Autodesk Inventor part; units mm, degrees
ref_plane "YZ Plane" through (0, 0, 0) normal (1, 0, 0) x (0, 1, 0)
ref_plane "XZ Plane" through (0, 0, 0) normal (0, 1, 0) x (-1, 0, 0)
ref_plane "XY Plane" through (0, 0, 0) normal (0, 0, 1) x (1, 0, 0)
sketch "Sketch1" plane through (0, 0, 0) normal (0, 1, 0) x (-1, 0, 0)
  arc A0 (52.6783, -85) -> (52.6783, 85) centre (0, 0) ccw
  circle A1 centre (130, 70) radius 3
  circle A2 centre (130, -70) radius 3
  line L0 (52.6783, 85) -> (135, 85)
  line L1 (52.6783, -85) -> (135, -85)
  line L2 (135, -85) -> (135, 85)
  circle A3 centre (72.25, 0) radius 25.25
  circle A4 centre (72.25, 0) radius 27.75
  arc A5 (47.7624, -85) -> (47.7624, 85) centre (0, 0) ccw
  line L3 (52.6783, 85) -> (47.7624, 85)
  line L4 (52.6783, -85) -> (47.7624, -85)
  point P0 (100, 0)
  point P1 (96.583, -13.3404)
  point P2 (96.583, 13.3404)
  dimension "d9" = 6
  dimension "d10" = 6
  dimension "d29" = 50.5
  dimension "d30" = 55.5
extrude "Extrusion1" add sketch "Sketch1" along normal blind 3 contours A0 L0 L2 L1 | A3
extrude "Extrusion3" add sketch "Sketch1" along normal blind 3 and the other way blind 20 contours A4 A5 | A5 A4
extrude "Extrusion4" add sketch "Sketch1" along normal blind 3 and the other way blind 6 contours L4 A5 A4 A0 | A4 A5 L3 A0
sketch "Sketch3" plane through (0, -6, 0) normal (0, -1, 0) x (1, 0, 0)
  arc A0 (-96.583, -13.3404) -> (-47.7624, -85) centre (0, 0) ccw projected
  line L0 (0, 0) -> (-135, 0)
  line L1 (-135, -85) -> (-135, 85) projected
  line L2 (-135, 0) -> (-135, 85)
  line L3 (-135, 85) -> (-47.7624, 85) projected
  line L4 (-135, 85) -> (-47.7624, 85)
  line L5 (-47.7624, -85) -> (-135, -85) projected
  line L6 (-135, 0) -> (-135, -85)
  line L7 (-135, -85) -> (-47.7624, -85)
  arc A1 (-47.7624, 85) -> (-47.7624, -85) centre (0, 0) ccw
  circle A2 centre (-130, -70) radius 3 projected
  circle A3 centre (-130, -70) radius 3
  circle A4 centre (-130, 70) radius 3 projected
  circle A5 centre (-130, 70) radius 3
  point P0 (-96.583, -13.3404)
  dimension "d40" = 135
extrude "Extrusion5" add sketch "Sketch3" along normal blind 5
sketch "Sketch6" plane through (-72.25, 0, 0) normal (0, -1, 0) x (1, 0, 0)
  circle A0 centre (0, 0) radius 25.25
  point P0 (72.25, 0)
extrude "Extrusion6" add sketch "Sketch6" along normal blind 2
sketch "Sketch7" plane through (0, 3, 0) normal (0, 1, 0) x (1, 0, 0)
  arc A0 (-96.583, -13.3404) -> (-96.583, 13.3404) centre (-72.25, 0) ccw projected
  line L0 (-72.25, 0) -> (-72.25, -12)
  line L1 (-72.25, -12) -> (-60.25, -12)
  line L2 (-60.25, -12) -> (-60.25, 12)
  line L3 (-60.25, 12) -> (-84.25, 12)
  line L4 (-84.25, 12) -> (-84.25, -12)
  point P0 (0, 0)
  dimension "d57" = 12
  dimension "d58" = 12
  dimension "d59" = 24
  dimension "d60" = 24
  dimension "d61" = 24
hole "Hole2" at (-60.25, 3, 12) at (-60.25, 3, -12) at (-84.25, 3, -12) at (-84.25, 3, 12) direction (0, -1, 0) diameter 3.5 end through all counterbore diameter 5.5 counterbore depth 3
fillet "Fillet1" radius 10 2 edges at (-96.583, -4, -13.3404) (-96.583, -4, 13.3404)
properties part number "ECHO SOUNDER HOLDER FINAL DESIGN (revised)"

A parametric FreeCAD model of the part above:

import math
import FreeCAD as App
import Part
import Sketcher

V = App.Vector


def edges_at(feature, points):
    """Names of the edges that pass closest to the given points."""
    edges = feature.Shape.Edges
    near = lambda p: min(range(len(edges)), key=lambda i: edges[i].distToShape(Part.Vertex(*p))[0])
    return sorted({f"Edge{near(p) + 1}" for p in points})

doc = App.newDocument("Part")
body = doc.addObject("PartDesign::Body", "Body")
body.AllowCompound = True

sketch1 = doc.addObject("Sketcher::SketchObject", "Sketch")
body.addObject(sketch1)
sketch1.AttachmentSupport = (doc.XZ_Plane, [""])
sketch1.MapMode = "FlatFace"
sketch1.addGeometry([
    Part.ArcOfCircle(Part.Circle(V(0, 0, 0), V(0, 0, 1), 100), math.radians(122), math.radians(238)),
    Part.LineSegment(V(-52.7, -85, 0), V(-135, -85, 0)),
    Part.LineSegment(V(-135, -85, 0), V(-135, 85, 0)),
    Part.LineSegment(V(-135, 85, 0), V(-52.7, 85, 0)),
    Part.Circle(V(-130, -70, 0), V(0, 0, 1), 3),
    Part.Circle(V(-130, 70, 0), V(0, 0, 1), 3),
    Part.Circle(V(-72.2, 0, 0), V(0, 0, 1), 25.2),
], False)
sketch1.addConstraint([
    Sketcher.Constraint("Coincident", 0, 2, 1, 1),
    Sketcher.Constraint("Coincident", 1, 2, 2, 1),
    Sketcher.Constraint("Coincident", 2, 2, 3, 1),
    Sketcher.Constraint("Coincident", 3, 2, 0, 1),
    Sketcher.Constraint("Horizontal", 1),
    Sketcher.Constraint("Vertical", 2),
    Sketcher.Constraint("Horizontal", 3),
    Sketcher.Constraint("Coincident", 0, 3, -1, 1),
    Sketcher.Constraint("Equal", 4, 5),
    Sketcher.Constraint("Symmetric", 4, 3, 5, 3, -1),
    Sketcher.Constraint("PointOnObject", 6, 3, -1),
    Sketcher.Constraint("Vertical", 0, 2, 3, 2),
    Sketcher.Constraint("Diameter", 4, 6.0),
    Sketcher.Constraint("Diameter", 6, 50.5),
    Sketcher.Constraint("Radius", 0, 100.0),
    Sketcher.Constraint("DistanceY", 2, 1, 2, 2, 170.0),
    Sketcher.Constraint("DistanceX", 4, 3, -1, 1, 130.0),
    Sketcher.Constraint("DistanceY", 4, 3, -1, 1, 70.0),
    Sketcher.Constraint("DistanceX", 1, 2, -1, 1, 135.0),
    Sketcher.Constraint("DistanceX", 6, 3, -1, 1, 72.25),
])
pad1 = doc.addObject("PartDesign::Pad", "Pad")
body.addObject(pad1)
pad1.Profile = sketch1
pad1.Length = 3
pad1.Reversed = True

sketch2 = doc.addObject("Sketcher::SketchObject", "Sketch001")
body.addObject(sketch2)
sketch2.AttachmentSupport = (doc.XZ_Plane, [""])
sketch2.MapMode = "FlatFace"
sketch2.addGeometry([
    Part.Circle(V(-72, 0, 0), V(0, 0, 1), 28),
    Part.Circle(V(-72, 0, 0), V(0, 0, 1), 25),
], False)
sketch2.addConstraint([
    Sketcher.Constraint("Coincident", 1, 3, 0, 3),
    Sketcher.Constraint("PointOnObject", 0, 3, -1),
    Sketcher.Constraint("Diameter", 0, 55.5),
    Sketcher.Constraint("Diameter", 1, 50.5),
    Sketcher.Constraint("DistanceX", 0, 3, -1, 1, 72.25),
])
pad2 = doc.addObject("PartDesign::Pad", "Pad001")
body.addObject(pad2)
pad2.Profile = sketch2
pad2.Type = "TwoLengths"
pad2.Length = 3
pad2.Length2 = 20
pad2.Reversed = True

sketch3 = doc.addObject("Sketcher::SketchObject", "Sketch002")
body.addObject(sketch3)
sketch3.AttachmentSupport = (doc.XZ_Plane, [""])
sketch3.MapMode = "FlatFace"
sketch3.addGeometry([
    Part.LineSegment(V(-47.8, -85, 0), V(-52.7, -85, 0)),
    Part.ArcOfCircle(Part.Circle(V(0, 0, 0), V(0, 0, 1), 100), math.radians(180), math.radians(238)),
    Part.ArcOfCircle(Part.Circle(V(-72.2, 0, 0), V(0, 0, 1), 27.8), math.radians(180), math.radians(209)),
    Part.ArcOfCircle(Part.Circle(V(0, 0, 0), V(0, 0, 1), 97.5), math.radians(-172), math.radians(-119)),
    Part.ArcOfCircle(Part.Circle(V(-72.2, 0, 0), V(0, 0, 1), 27.8), math.radians(151), math.radians(180)),
    Part.ArcOfCircle(Part.Circle(V(0, 0, 0), V(0, 0, 1), 100), math.radians(122), math.radians(180)),
    Part.LineSegment(V(-52.7, 85, 0), V(-47.8, 85, 0)),
    Part.ArcOfCircle(Part.Circle(V(0, 0, 0), V(0, 0, 1), 97.5), math.radians(119), math.radians(172)),
], False)
sketch3.addConstraint([
    Sketcher.Constraint("Coincident", 0, 2, 1, 2),
    Sketcher.Constraint("Tangent", 1, 1, 2, 1),
    Sketcher.Constraint("Coincident", 2, 2, 3, 1),
    Sketcher.Constraint("Coincident", 3, 2, 0, 1),
    Sketcher.Constraint("Tangent", 4, 2, 5, 2),
    Sketcher.Constraint("Coincident", 5, 1, 6, 1),
    Sketcher.Constraint("Coincident", 6, 2, 7, 1),
    Sketcher.Constraint("Coincident", 7, 2, 4, 1),
    Sketcher.Constraint("Horizontal", 0),
    Sketcher.Constraint("Horizontal", 6),
    Sketcher.Constraint("Coincident", 1, 3, -1, 1),
    Sketcher.Constraint("Coincident", 3, 3, -1, 1),
    Sketcher.Constraint("Coincident", 5, 3, -1, 1),
    Sketcher.Constraint("Coincident", 7, 3, -1, 1),
    Sketcher.Constraint("Coincident", 4, 3, 2, 3),
    Sketcher.Constraint("Equal", 2, 4),
    Sketcher.Constraint("Equal", 3, 7),
    Sketcher.Constraint("PointOnObject", 2, 3, -1),
    Sketcher.Constraint("Vertical", 0, 2, 5, 1),
    Sketcher.Constraint("Radius", 2, 27.75),
    Sketcher.Constraint("Radius", 1, 100.0),
    Sketcher.Constraint("Radius", 3, 97.5),
    Sketcher.Constraint("DistanceY", 0, 2, -1, 1, 85.0),
])
pad3 = doc.addObject("PartDesign::Pad", "Pad002")
body.addObject(pad3)
pad3.Profile = sketch3
pad3.Type = "TwoLengths"
pad3.Length = 3
pad3.Length2 = 6
pad3.Reversed = True

sketch4 = doc.addObject("Sketcher::SketchObject", "Sketch003")
body.addObject(sketch4)
sketch4.AttachmentSupport = (doc.XZ_Plane, [""])
sketch4.MapMode = "FlatFace"
sketch4.AttachmentOffset = App.Placement(V(0, 0, 6), App.Rotation())
sketch4.addGeometry([
    Part.ArcOfCircle(Part.Circle(V(0, 0, 0), V(0, 0, 1), 97.5), math.radians(-172), math.radians(-119)),
    Part.ArcOfCircle(Part.Circle(V(0, 0, 0), V(0, 0, 1), 97.5), math.radians(119), math.radians(188)),
    Part.LineSegment(V(-47.8, 85, 0), V(-135, 85, 0)),
    Part.LineSegment(V(-135, 85, 0), V(-135, -85, 0)),
    Part.LineSegment(V(-135, -85, 0), V(-47.8, -85, 0)),
    Part.Circle(V(-130, -70, 0), V(0, 0, 1), 3),
    Part.Circle(V(-130, 70, 0), V(0, 0, 1), 3),
], False)
sketch4.addConstraint([
    Sketcher.Constraint("Tangent", 0, 1, 1, 2),
    Sketcher.Constraint("Coincident", 1, 1, 2, 1),
    Sketcher.Constraint("Coincident", 2, 2, 3, 1),
    Sketcher.Constraint("Coincident", 3, 2, 4, 1),
    Sketcher.Constraint("Coincident", 4, 2, 0, 2),
    Sketcher.Constraint("Horizontal", 2),
    Sketcher.Constraint("Vertical", 3),
    Sketcher.Constraint("Horizontal", 4),
    Sketcher.Constraint("Coincident", 0, 3, -1, 1),
    Sketcher.Constraint("Equal", 0, 1),
    Sketcher.Constraint("Equal", 5, 6),
    Sketcher.Constraint("Symmetric", 5, 3, 6, 3, -1),
    Sketcher.Constraint("Vertical", 1, 1, 4, 2),
    Sketcher.Constraint("Diameter", 5, 6.0),
    Sketcher.Constraint("DistanceX", 2, 2, -1, 1, 135.0),
    Sketcher.Constraint("Radius", 0, 97.5),
    Sketcher.Constraint("DistanceY", 3, 2, 3, 1, 170.0),
    Sketcher.Constraint("DistanceX", 5, 3, -1, 1, 130.0),
    Sketcher.Constraint("DistanceY", 5, 3, -1, 1, 70.0),
    Sketcher.Constraint("DistanceX", 0, 1, -1, 1, 96.583),
])
pad4 = doc.addObject("PartDesign::Pad", "Pad003")
body.addObject(pad4)
pad4.Profile = sketch4
pad4.Length = 5

sketch5 = doc.addObject("Sketcher::SketchObject", "Sketch004")
body.addObject(sketch5)
sketch5.AttachmentSupport = (doc.XZ_Plane, [""])
sketch5.MapMode = "FlatFace"
sketch5.addGeometry(Part.Circle(V(-72, 0, 0), V(0, 0, 1), 25), False)
sketch5.addConstraint([
    Sketcher.Constraint("PointOnObject", 0, 3, -1),
    Sketcher.Constraint("Diameter", 0, 50.5),
    Sketcher.Constraint("DistanceX", 0, 3, -1, 1, 72.25),
])
pad5 = doc.addObject("PartDesign::Pad", "Pad004")
body.addObject(pad5)
pad5.Profile = sketch5
pad5.Length = 2

sketch6 = doc.addObject("Sketcher::SketchObject", "Sketch005")
body.addObject(sketch6)
sketch6.AttachmentSupport = (doc.XZ_Plane, [""])
sketch6.MapMode = "FlatFace"
sketch6.AttachmentOffset = App.Placement(V(0, 0, -3), App.Rotation())
sketch6.addGeometry([
    Part.Circle(V(-60.2, 12, 0), V(0, 0, 1), 1.8),
    Part.Circle(V(-60.2, -12, 0), V(0, 0, 1), 1.8),
    Part.Circle(V(-84.2, -12, 0), V(0, 0, 1), 1.8),
    Part.Circle(V(-84.2, 12, 0), V(0, 0, 1), 1.8),
], False)
sketch6.addConstraint([
    Sketcher.Constraint("Equal", 0, 1),
    Sketcher.Constraint("Equal", 1, 2),
    Sketcher.Constraint("Equal", 2, 3),
    Sketcher.Constraint("Symmetric", 0, 3, 1, 3, -1),
    Sketcher.Constraint("Symmetric", 2, 3, 3, 3, -1),
    Sketcher.Constraint("Horizontal", 1, 3, 2, 3),
    Sketcher.Constraint("Diameter", 0, 3.5),
    Sketcher.Constraint("DistanceY", -1, 1, 0, 3, 12.0),
    Sketcher.Constraint("DistanceX", 2, 3, 1, 3, 24.0),
    Sketcher.Constraint("DistanceX", 0, 3, -1, 1, 60.25),
])
doc.recompute()
hole = doc.addObject("PartDesign::Hole", "Hole")
body.addObject(hole)
hole.Profile = sketch6
hole.ThreadType = "None"
hole.Diameter = 3.5
hole.DepthType = "ThroughAll"
hole.HoleCutType = "Counterbore"
hole.HoleCutDiameter = 5.5
hole.HoleCutDepth = 3
hole.Reversed = True
doc.recompute()

fillet = doc.addObject("PartDesign::Fillet", "Fillet")
body.addObject(fillet)
fillet.Base = (hole, edges_at(hole, [(-96.583, -4, -13.34), (-96.583, -4, 13.34)]))
fillet.Radius = 10

doc.recompute()
